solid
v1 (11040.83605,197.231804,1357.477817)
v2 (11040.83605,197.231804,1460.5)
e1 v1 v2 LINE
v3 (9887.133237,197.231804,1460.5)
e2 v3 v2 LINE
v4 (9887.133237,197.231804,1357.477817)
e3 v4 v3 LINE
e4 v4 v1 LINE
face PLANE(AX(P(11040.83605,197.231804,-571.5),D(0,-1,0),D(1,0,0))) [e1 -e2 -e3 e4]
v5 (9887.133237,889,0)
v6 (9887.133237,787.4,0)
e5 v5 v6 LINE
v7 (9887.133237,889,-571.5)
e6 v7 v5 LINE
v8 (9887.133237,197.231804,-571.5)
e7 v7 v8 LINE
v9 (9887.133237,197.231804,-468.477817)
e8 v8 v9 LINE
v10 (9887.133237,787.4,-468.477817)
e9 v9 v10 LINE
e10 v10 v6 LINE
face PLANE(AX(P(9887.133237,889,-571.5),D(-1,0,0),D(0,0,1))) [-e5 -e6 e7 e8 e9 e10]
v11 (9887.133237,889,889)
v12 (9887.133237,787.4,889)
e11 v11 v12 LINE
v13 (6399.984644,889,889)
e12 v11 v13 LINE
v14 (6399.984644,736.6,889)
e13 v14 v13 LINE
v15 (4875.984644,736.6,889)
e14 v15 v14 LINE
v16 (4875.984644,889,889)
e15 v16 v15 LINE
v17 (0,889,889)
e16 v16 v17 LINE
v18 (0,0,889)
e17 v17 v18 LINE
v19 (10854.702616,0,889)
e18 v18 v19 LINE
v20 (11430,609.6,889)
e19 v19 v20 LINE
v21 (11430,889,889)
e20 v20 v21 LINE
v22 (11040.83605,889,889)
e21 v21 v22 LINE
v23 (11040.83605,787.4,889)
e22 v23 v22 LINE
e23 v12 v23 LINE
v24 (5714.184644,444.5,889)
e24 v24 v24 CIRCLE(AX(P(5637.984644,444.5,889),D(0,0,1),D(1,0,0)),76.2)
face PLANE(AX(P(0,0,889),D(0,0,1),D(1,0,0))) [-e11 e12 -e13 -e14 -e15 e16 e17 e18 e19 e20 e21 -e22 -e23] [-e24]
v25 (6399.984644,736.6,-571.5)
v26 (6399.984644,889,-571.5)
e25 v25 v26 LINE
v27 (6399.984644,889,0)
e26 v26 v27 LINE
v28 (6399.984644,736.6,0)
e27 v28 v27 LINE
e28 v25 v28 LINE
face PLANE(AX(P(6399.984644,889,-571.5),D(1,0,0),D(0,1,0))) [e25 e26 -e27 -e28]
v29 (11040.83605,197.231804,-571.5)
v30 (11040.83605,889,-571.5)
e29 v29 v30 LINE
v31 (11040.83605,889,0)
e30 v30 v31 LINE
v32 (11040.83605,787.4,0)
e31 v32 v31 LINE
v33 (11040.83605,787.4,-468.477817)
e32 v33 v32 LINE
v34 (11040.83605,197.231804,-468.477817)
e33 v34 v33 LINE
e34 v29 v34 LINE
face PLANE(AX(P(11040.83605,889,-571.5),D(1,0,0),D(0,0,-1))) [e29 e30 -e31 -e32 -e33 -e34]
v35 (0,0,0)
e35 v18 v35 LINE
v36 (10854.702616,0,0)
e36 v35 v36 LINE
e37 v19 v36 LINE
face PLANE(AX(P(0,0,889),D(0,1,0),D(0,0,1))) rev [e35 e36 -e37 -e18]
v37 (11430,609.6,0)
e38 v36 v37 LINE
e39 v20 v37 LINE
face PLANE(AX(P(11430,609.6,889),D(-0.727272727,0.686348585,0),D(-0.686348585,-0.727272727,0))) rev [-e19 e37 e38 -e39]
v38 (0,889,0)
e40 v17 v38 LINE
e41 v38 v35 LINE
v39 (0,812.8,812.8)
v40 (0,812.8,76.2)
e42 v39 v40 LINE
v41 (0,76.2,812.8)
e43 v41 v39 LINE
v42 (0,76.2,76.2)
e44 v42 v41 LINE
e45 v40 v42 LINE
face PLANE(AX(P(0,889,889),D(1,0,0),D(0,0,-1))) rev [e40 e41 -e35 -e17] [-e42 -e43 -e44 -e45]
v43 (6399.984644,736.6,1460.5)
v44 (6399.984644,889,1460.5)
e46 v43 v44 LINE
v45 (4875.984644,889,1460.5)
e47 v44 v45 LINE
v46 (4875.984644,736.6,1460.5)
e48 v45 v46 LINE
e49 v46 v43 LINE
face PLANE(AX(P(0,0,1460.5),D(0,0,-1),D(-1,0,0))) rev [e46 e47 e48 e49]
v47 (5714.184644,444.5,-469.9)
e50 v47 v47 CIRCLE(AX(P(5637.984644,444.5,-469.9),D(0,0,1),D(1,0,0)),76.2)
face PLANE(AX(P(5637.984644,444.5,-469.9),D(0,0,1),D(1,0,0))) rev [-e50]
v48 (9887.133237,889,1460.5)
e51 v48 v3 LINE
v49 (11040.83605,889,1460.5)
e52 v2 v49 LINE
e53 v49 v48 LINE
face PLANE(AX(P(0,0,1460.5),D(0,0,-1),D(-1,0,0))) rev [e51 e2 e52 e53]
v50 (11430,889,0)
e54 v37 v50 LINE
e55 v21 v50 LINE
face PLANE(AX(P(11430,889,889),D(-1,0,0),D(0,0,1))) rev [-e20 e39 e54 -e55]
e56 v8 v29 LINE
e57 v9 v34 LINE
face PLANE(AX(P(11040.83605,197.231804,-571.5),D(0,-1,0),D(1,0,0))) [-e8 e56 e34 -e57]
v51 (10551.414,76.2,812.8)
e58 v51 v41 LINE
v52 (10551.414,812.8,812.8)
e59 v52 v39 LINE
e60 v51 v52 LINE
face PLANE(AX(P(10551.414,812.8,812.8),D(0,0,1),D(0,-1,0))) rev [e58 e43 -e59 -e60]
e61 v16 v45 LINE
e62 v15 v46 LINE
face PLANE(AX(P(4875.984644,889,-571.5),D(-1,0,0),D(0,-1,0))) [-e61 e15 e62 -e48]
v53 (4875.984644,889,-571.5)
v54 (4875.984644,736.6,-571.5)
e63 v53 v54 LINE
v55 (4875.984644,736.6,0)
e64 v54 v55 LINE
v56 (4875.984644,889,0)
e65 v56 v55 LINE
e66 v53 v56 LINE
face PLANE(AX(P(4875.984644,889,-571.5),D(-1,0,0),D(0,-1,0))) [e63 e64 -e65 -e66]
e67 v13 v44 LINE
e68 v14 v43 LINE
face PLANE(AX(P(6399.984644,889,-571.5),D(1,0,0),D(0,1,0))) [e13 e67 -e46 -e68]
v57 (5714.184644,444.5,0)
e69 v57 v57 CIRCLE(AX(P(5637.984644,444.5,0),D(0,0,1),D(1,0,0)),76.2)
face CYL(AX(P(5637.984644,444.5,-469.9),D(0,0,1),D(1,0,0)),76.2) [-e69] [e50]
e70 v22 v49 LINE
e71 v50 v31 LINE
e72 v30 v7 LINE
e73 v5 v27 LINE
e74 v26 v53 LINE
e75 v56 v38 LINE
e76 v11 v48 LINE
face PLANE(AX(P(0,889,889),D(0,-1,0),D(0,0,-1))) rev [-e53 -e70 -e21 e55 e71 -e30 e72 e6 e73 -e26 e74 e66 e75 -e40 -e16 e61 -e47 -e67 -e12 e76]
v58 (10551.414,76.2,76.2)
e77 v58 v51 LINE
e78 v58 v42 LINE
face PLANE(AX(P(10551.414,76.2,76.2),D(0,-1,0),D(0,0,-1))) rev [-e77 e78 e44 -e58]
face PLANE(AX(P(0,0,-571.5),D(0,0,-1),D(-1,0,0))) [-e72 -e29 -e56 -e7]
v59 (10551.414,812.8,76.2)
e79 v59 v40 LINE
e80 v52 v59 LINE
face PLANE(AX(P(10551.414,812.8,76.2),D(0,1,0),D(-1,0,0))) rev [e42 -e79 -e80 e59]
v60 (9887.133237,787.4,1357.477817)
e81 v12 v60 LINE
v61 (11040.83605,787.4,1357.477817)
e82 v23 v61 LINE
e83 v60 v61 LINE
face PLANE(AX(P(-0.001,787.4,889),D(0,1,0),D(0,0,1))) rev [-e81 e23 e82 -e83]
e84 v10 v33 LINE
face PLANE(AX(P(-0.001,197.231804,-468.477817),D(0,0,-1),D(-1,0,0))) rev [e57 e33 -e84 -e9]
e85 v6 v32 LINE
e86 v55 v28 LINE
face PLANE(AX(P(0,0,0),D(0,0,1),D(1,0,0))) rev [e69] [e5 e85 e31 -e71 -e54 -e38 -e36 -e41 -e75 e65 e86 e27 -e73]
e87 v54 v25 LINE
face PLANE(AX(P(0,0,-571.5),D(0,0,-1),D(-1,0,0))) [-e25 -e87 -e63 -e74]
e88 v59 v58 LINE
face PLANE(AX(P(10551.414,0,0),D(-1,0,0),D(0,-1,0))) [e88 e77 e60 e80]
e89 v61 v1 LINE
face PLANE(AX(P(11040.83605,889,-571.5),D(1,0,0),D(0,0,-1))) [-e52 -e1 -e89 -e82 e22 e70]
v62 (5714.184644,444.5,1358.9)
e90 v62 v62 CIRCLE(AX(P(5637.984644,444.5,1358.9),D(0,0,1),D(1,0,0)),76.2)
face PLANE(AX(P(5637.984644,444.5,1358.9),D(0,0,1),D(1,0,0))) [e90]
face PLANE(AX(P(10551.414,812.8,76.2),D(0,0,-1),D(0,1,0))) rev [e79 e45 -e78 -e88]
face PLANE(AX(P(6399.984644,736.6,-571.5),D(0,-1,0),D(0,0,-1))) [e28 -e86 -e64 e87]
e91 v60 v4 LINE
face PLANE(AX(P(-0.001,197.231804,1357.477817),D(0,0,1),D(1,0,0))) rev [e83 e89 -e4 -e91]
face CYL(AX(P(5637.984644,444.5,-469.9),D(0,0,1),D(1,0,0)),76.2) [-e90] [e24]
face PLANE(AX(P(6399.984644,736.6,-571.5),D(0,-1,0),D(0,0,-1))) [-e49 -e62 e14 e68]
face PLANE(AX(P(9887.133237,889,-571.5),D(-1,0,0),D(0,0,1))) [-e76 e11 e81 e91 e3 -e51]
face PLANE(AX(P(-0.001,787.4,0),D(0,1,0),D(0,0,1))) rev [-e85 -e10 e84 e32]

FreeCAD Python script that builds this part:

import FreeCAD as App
import Part
import Sketcher

V = App.Vector
Q = App.Units.Quantity


def add_polygon(sketch, points):
    """Adds a closed chain of lines whose ends are joined by coincident constraints."""
    first, n = sketch.GeometryCount, len(points)
    for a, b in zip(points, points[1:] + points[:1]):
        sketch.addGeometry(Part.LineSegment(App.Vector(*a, 0), App.Vector(*b, 0)), False)
    for i in range(n):
        sketch.addConstraint(Sketcher.Constraint("Coincident", first + i, 2, first + (i + 1) % n, 1))

doc = App.newDocument("Part")
body = doc.addObject("PartDesign::Body", "Body")

# Sketch on XY plane
sketch1 = body.newObject("Sketcher::SketchObject", "Sketch")
sketch1.AttachmentSupport = (doc.getObject("XY_Plane"), [""])
sketch1.MapMode = "FlatFace"
add_polygon(sketch1, [(0, 0), (10855, 0), (11430, 610), (11430, 889), (0, 889)])  # lines 0-4
sketch1.addConstraint(Sketcher.Constraint("Horizontal", 0))
sketch1.addConstraint(Sketcher.Constraint("Vertical", 2))
sketch1.addConstraint(Sketcher.Constraint("Horizontal", 3))
sketch1.addConstraint(Sketcher.Constraint("Vertical", 4))
sketch1.addConstraint(Sketcher.Constraint("Coincident", 4, 2, -1, 1))
sketch1.addConstraint(Sketcher.Constraint("DistanceX", 3, 2, 3, 1, Q("450 in")))
sketch1.addConstraint(Sketcher.Constraint("DistanceY", 2, 1, 2, 2, Q("11 in")))
sketch1.addConstraint(Sketcher.Constraint("DistanceY", 4, 2, 4, 1, Q("35 in")))
sketch1.addConstraint(Sketcher.Constraint("Distance", 1, Q("33 in")))
pad1 = body.newObject("PartDesign::Pad", "Pad")
pad1.Profile = sketch1
pad1.Length = Q("35 in")

# Sketch on XY plane
sketch2 = body.newObject("Sketcher::SketchObject", "Sketch001")
sketch2.AttachmentSupport = (doc.getObject("XY_Plane"), [""])
sketch2.MapMode = "FlatFace"
sketch2.AttachmentOffset = App.Placement(V(0, 0, 35 * 25.4), App.Rotation())
add_polygon(sketch2, [(9887, 889), (9887, 197), (11041, 197), (11041, 889)])  # lines 0-3
add_polygon(sketch2, [(4876, 889), (4876, 737), (6400, 737), (6400, 889)])  # lines 4-7
sketch2.addConstraint(Sketcher.Constraint("Vertical", 0))
sketch2.addConstraint(Sketcher.Constraint("Horizontal", 1))
sketch2.addConstraint(Sketcher.Constraint("Vertical", 2))
sketch2.addConstraint(Sketcher.Constraint("Horizontal", 3))
sketch2.addConstraint(Sketcher.Constraint("Vertical", 4))
sketch2.addConstraint(Sketcher.Constraint("Horizontal", 5))
sketch2.addConstraint(Sketcher.Constraint("Vertical", 6))
sketch2.addConstraint(Sketcher.Constraint("Horizontal", 7))
sketch2.addConstraint(Sketcher.Constraint("Horizontal", 3, 2, 6, 2))
sketch2.addConstraint(Sketcher.Constraint("DistanceX", 5, 1, 5, 2, Q("60 in")))
sketch2.addConstraint(Sketcher.Constraint("DistanceY", 4, 2, 4, 1, Q("6 in")))
sketch2.addConstraint(Sketcher.Constraint("DistanceY", -1, 1, 2, 2, Q("35 in")))
sketch2.addConstraint(Sketcher.Constraint("DistanceX", 1, 1, 1, 2, 1153.702812))
sketch2.addConstraint(Sketcher.Constraint("DistanceY", 0, 2, 0, 1, 691.768196))
sketch2.addConstraint(Sketcher.Constraint("DistanceX", -1, 1, 1, 2, 11040.83605))
sketch2.addConstraint(Sketcher.Constraint("DistanceX", -1, 1, 4, 2, 4875.984644))
pad2 = body.newObject("PartDesign::Pad", "Pad001")
pad2.Profile = sketch2
pad2.Type = "TwoLengths"
pad2.Length = Q("22.5 in")
pad2.Length2 = Q("57.5 in")

# Sketch on YZ plane
sketch3 = body.newObject("Sketcher::SketchObject", "Sketch002")
sketch3.AttachmentSupport = (doc.getObject("YZ_Plane"), [""])
sketch3.MapMode = "FlatFace"
sketch3.AttachmentOffset = App.Placement(V(0, 0, 11040.83605), App.Rotation())
add_polygon(sketch3, [(787, 1357), (197, 1357), (197, 889), (787, 889)])  # lines 0-3
sketch3.addConstraint(Sketcher.Constraint("Horizontal", 0))
sketch3.addConstraint(Sketcher.Constraint("Vertical", 1))
sketch3.addConstraint(Sketcher.Constraint("Horizontal", 2))
sketch3.addConstraint(Sketcher.Constraint("Vertical", 3))
sketch3.addConstraint(Sketcher.Constraint("DistanceY", -1, 1, 1, 2, Q("35 in")))
sketch3.addConstraint(Sketcher.Constraint("DistanceX", -1, 1, 2, 2, Q("31 in")))
sketch3.addConstraint(Sketcher.Constraint("DistanceX", 0, 2, 0, 1, 590.168196))
sketch3.addConstraint(Sketcher.Constraint("DistanceY", 1, 2, 1, 1, 468.477817))
pocket1 = body.newObject("PartDesign::Pocket", "Pocket")
pocket1.Profile = sketch3
pocket1.Type = "UpToFirst"

# Sketch on YZ plane
sketch4 = body.newObject("Sketcher::SketchObject", "Sketch003")
sketch4.AttachmentSupport = (doc.getObject("YZ_Plane"), [""])
sketch4.MapMode = "FlatFace"
sketch4.AttachmentOffset = App.Placement(V(0, 0, 11040.83605), App.Rotation())
add_polygon(sketch4, [(787, 0), (197, 0), (197, -468), (787, -468)])  # lines 0-3
sketch4.addConstraint(Sketcher.Constraint("Horizontal", 0))
sketch4.addConstraint(Sketcher.Constraint("Vertical", 1))
sketch4.addConstraint(Sketcher.Constraint("Horizontal", 2))
sketch4.addConstraint(Sketcher.Constraint("Vertical", 3))
sketch4.addConstraint(Sketcher.Constraint("PointOnObject", 0, 2, -1))
sketch4.addConstraint(Sketcher.Constraint("DistanceX", -1, 1, 2, 2, Q("31 in")))
sketch4.addConstraint(Sketcher.Constraint("DistanceX", 0, 2, 0, 1, 590.168196))
sketch4.addConstraint(Sketcher.Constraint("DistanceY", 1, 2, 1, 1, 468.477817))
pocket2 = body.newObject("PartDesign::Pocket", "Pocket001")
pocket2.Profile = sketch4
pocket2.Type = "UpToFirst"

# Sketch on XY plane
sketch5 = body.newObject("Sketcher::SketchObject", "Sketch004")
sketch5.AttachmentSupport = (doc.getObject("XY_Plane"), [""])
sketch5.MapMode = "FlatFace"
sketch5.AttachmentOffset = App.Placement(V(0, 0, 35 * 25.4), App.Rotation())
sketch5.addGeometry(Part.Circle(V(5638, 444, 0), V(0, 0, 1), 76), False)
sketch5.addConstraint(Sketcher.Constraint("Diameter", 0, Q("6 in")))
sketch5.addConstraint(Sketcher.Constraint("DistanceY", -1, 1, 0, 3, Q("17.5 in")))
sketch5.addConstraint(Sketcher.Constraint("DistanceX", -1, 1, 0, 3, 5637.984644))
pad3 = body.newObject("PartDesign::Pad", "Pad002")
pad3.Profile = sketch5
pad3.Type = "TwoLengths"
pad3.Length = Q("18.5 in")
pad3.Length2 = Q("53.5 in")

# Sketch on YZ plane
sketch6 = body.newObject("Sketcher::SketchObject", "Sketch005")
sketch6.AttachmentSupport = (doc.getObject("YZ_Plane"), [""])
sketch6.MapMode = "FlatFace"
add_polygon(sketch6, [(813, 76), (76, 76), (76, 813), (813, 813)])  # lines 0-3
sketch6.addConstraint(Sketcher.Constraint("Horizontal", 0))
sketch6.addConstraint(Sketcher.Constraint("Vertical", 1))
sketch6.addConstraint(Sketcher.Constraint("Horizontal", 2))
sketch6.addConstraint(Sketcher.Constraint("Vertical", 3))
sketch6.addConstraint(Sketcher.Constraint("Equal", 2, 1))
sketch6.addConstraint(Sketcher.Constraint("DistanceX", 0, 2, 0, 1, Q("29 in")))
sketch6.addConstraint(Sketcher.Constraint("DistanceX", -1, 1, 0, 2, Q("3 in")))
sketch6.addConstraint(Sketcher.Constraint("DistanceY", -1, 1, 0, 2, Q("3 in")))
pocket3 = body.newObject("PartDesign::Pocket", "Pocket002")
pocket3.Profile = sketch6
pocket3.Length = Q("415.41 in")
pocket3.Reversed = True

doc.recompute()
